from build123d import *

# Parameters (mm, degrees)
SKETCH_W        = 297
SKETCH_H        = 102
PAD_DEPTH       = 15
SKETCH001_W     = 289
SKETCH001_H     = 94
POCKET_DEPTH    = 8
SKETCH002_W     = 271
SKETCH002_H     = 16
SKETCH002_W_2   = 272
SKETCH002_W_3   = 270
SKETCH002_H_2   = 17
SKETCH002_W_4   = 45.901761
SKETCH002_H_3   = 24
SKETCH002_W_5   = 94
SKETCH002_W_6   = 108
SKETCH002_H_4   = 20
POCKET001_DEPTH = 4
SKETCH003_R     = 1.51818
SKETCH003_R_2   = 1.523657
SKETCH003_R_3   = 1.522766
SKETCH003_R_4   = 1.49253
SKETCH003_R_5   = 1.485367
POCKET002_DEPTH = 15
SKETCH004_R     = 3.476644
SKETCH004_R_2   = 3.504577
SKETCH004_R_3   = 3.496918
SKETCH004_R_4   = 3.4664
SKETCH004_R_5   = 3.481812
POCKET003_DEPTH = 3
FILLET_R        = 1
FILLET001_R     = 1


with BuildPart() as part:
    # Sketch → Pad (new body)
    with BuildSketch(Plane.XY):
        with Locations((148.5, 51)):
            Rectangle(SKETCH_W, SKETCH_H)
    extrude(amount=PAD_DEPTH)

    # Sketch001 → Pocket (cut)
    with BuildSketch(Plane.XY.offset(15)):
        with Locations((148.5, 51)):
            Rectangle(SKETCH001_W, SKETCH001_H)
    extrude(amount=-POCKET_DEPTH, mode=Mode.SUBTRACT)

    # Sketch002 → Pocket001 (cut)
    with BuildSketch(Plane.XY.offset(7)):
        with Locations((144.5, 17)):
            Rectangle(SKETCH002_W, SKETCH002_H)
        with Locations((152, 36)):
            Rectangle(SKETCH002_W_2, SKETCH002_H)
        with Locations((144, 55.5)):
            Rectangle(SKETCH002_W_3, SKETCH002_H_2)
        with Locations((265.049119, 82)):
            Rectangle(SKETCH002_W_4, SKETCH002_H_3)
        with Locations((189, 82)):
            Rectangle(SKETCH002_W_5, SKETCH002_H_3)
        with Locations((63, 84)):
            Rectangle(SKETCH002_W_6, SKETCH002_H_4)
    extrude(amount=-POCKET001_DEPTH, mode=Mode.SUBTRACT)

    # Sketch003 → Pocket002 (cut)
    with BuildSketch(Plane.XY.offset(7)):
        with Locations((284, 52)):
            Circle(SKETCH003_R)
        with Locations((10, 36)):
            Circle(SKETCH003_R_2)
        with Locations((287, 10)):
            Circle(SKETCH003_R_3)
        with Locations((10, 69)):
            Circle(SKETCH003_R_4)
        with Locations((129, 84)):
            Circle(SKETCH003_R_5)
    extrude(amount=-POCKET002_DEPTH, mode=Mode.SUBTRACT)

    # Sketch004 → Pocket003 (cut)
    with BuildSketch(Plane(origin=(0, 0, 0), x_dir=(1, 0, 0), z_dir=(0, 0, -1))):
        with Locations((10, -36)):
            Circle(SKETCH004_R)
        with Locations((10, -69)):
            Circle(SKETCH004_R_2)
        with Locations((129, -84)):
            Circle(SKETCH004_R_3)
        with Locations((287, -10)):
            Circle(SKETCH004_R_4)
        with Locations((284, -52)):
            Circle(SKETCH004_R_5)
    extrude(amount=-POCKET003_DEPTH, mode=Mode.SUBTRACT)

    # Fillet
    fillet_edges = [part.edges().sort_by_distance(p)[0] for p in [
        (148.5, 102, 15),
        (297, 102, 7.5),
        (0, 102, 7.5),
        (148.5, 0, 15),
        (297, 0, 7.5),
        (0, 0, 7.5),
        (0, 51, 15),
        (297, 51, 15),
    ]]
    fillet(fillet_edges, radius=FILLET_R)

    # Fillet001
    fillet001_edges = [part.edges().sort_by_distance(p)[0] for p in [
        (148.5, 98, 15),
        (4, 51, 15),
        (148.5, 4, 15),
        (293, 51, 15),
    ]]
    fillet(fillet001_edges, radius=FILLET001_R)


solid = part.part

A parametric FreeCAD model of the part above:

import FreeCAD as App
import Part
import Sketcher

V = App.Vector


def edges_at(feature, points):
    """Names of the edges that pass closest to the given points."""
    edges = feature.Shape.Edges
    near = lambda p: min(range(len(edges)), key=lambda i: edges[i].distToShape(Part.Vertex(*p))[0])
    return sorted({f"Edge{near(p) + 1}" for p in points})


def add_polygon(sketch, points):
    """Adds a closed chain of lines whose ends are joined by coincident constraints."""
    first, n = sketch.GeometryCount, len(points)
    for a, b in zip(points, points[1:] + points[:1]):
        sketch.addGeometry(Part.LineSegment(App.Vector(*a, 0), App.Vector(*b, 0)), False)
    for i in range(n):
        sketch.addConstraint(Sketcher.Constraint("Coincident", first + i, 2, first + (i + 1) % n, 1))

doc = App.newDocument("Part")
body = doc.addObject("PartDesign::Body", "Body")

sketch1 = body.newObject("Sketcher::SketchObject", "Sketch")
sketch1.AttachmentSupport = (doc.getObject("XY_Plane"), [""])
sketch1.MapMode = "FlatFace"
add_polygon(sketch1, [(0, 102), (0, 0), (297, 0), (297, 102)])
sketch1.addConstraint([
    Sketcher.Constraint("Vertical", 0),
    Sketcher.Constraint("Horizontal", 1),
    Sketcher.Constraint("Vertical", 2),
    Sketcher.Constraint("Horizontal", 3),
    Sketcher.Constraint("Coincident", 0, 2, -1, 1),
    Sketcher.Constraint("DistanceX", 1, 1, 1, 2, 297.0),
    Sketcher.Constraint("DistanceY", 0, 2, 0, 1, 102.0),
])
pad1 = body.newObject("PartDesign::Pad", "Pad")
pad1.Profile = sketch1
pad1.Length = 15

sketch2 = body.newObject("Sketcher::SketchObject", "Sketch001")
sketch2.AttachmentSupport = (doc.getObject("XY_Plane"), [""])
sketch2.MapMode = "FlatFace"
sketch2.AttachmentOffset = App.Placement(V(0, 0, 15), App.Rotation())
add_polygon(sketch2, [(4, 98), (4, 4), (293, 4), (293, 98)])
sketch2.addConstraint([
    Sketcher.Constraint("Vertical", 0),
    Sketcher.Constraint("Horizontal", 1),
    Sketcher.Constraint("Vertical", 2),
    Sketcher.Constraint("Horizontal", 3),
    Sketcher.Constraint("DistanceX", 1, 1, 1, 2, 289.0),
    Sketcher.Constraint("DistanceY", 0, 2, 0, 1, 94.0),
    Sketcher.Constraint("DistanceX", -1, 1, 0, 2, 4.0),
    Sketcher.Constraint("DistanceY", -1, 1, 0, 2, 4.0),
])
pocket1 = body.newObject("PartDesign::Pocket", "Pocket")
pocket1.Profile = sketch2
pocket1.Length = 8

sketch3 = body.newObject("Sketcher::SketchObject", "Sketch002")
sketch3.AttachmentSupport = (doc.getObject("XY_Plane"), [""])
sketch3.MapMode = "FlatFace"
sketch3.AttachmentOffset = App.Placement(V(0, 0, 7), App.Rotation())
add_polygon(sketch3, [(9, 25), (9, 9), (280, 9), (280, 25)])
add_polygon(sketch3, [(16, 44), (16, 28), (288, 28), (288, 44)])
add_polygon(sketch3, [(9, 64), (9, 47), (279, 47), (279, 64)])
add_polygon(sketch3, [(242, 94), (242, 70), (288, 70), (288, 94)])
add_polygon(sketch3, [(142, 94), (142, 70), (236, 70), (236, 94)])
add_polygon(sketch3, [(9, 94), (9, 74), (117, 74), (117, 94)])
sketch3.addConstraint([
    Sketcher.Constraint("Vertical", 0),
    Sketcher.Constraint("Horizontal", 1),
    Sketcher.Constraint("Vertical", 2),
    Sketcher.Constraint("Horizontal", 3),
    Sketcher.Constraint("Vertical", 4),
    Sketcher.Constraint("Horizontal", 5),
    Sketcher.Constraint("Vertical", 6),
    Sketcher.Constraint("Horizontal", 7),
    Sketcher.Constraint("Vertical", 8),
    Sketcher.Constraint("Horizontal", 9),
    Sketcher.Constraint("Vertical", 10),
    Sketcher.Constraint("Horizontal", 11),
    Sketcher.Constraint("Vertical", 12),
    Sketcher.Constraint("Horizontal", 13),
    Sketcher.Constraint("Vertical", 14),
    Sketcher.Constraint("Horizontal", 15),
    Sketcher.Constraint("Vertical", 16),
    Sketcher.Constraint("Horizontal", 17),
    Sketcher.Constraint("Vertical", 18),
    Sketcher.Constraint("Horizontal", 19),
    Sketcher.Constraint("Vertical", 20),
    Sketcher.Constraint("Horizontal", 21),
    Sketcher.Constraint("Vertical", 22),
    Sketcher.Constraint("Horizontal", 23),
    Sketcher.Constraint("Horizontal", 13, 2, 16, 2),
    Sketcher.Constraint("Horizontal", 15, 2, 18, 2),
    Sketcher.Constraint("Horizontal", 19, 2, 22, 2),
    Sketcher.Constraint("Vertical", 3, 2, 8, 2),
    Sketcher.Constraint("Vertical", 6, 2, 13, 2),
    Sketcher.Constraint("Vertical", 11, 2, 20, 2),
    Sketcher.Constraint("Equal", 2, 4),
    Sketcher.Constraint("DistanceX", 1, 1, 1, 2, 271.0),
    Sketcher.Constraint("DistanceX", 5, 1, 5, 2, 272.0),
    Sketcher.Constraint("DistanceX", 9, 1, 9, 2, 270.0),
    Sketcher.Constraint("DistanceX", 17, 1, 17, 2, 94.0),
    Sketcher.Constraint("DistanceX", 21, 1, 21, 2, 108.0),
    Sketcher.Constraint("DistanceY", 0, 2, 0, 1, 16.0),
    Sketcher.Constraint("DistanceY", 8, 2, 8, 1, 17.0),
    Sketcher.Constraint("DistanceY", 12, 2, 12, 1, 24.0),
    Sketcher.Constraint("DistanceY", 20, 2, 20, 1, 20.0),
    Sketcher.Constraint("DistanceX", -1, 1, 0, 2, 9.0),
    Sketcher.Constraint("DistanceY", -1, 1, 0, 2, 9.0),
    Sketcher.Constraint("DistanceX", -1, 1, 4, 2, 16.0),
    Sketcher.Constraint("DistanceY", -1, 1, 4, 2, 28.0),
    Sketcher.Constraint("DistanceY", -1, 1, 8, 2, 47.0),
    Sketcher.Constraint("DistanceY", -1, 1, 12, 2, 70.0),
    Sketcher.Constraint("DistanceX", -1, 1, 16, 2, 142.0),
    Sketcher.Constraint("DistanceX", 13, 1, 13, 2, 45.901761),
])
pocket2 = body.newObject("PartDesign::Pocket", "Pocket001")
pocket2.Profile = sketch3
pocket2.Length = 4

sketch4 = body.newObject("Sketcher::SketchObject", "Sketch003")
sketch4.AttachmentSupport = (doc.getObject("XY_Plane"), [""])
sketch4.MapMode = "FlatFace"
sketch4.AttachmentOffset = App.Placement(V(0, 0, 7), App.Rotation())
sketch4.addGeometry([
    Part.Circle(V(284, 52, 0), V(0, 0, 1), 1.5),
    Part.Circle(V(10, 36, 0), V(0, 0, 1), 1.5),
    Part.Circle(V(287, 10, 0), V(0, 0, 1), 1.5),
    Part.Circle(V(10, 69, 0), V(0, 0, 1), 1.5),
    Part.Circle(V(129, 84, 0), V(0, 0, 1), 1.5),
], False)
sketch4.addConstraint([
    Sketcher.Constraint("Vertical", 1, 3, 3, 3),
    Sketcher.Constraint("DistanceX", -1, 1, 0, 3, 284.0),
    Sketcher.Constraint("DistanceY", -1, 1, 0, 3, 52.0),
    Sketcher.Constraint("DistanceX", -1, 1, 1, 3, 10.0),
    Sketcher.Constraint("DistanceY", -1, 1, 1, 3, 36.0),
    Sketcher.Constraint("DistanceX", -1, 1, 2, 3, 287.0),
    Sketcher.Constraint("DistanceY", -1, 1, 2, 3, 10.0),
    Sketcher.Constraint("DistanceY", -1, 1, 3, 3, 69.0),
    Sketcher.Constraint("DistanceX", -1, 1, 4, 3, 129.0),
    Sketcher.Constraint("DistanceY", -1, 1, 4, 3, 84.0),
    Sketcher.Constraint("Diameter", 0, 3.03636),
    Sketcher.Constraint("Diameter", 3, 2.98506),
    Sketcher.Constraint("Diameter", 1, 3.047314),
    Sketcher.Constraint("Diameter", 2, 3.045532),
    Sketcher.Constraint("Diameter", 4, 2.970734),
])
pocket3 = body.newObject("PartDesign::Pocket", "Pocket002")
pocket3.Profile = sketch4
pocket3.Length = 15

sketch5 = body.newObject("Sketcher::SketchObject", "Sketch004")
sketch5.AttachmentSupport = (doc.getObject("XY_Plane"), [""])
sketch5.MapMode = "FlatFace"
sketch5.addGeometry([
    Part.Circle(V(10, 36, 0), V(0, 0, 1), 3.5),
    Part.Circle(V(10, 69, 0), V(0, 0, 1), 3.5),
    Part.Circle(V(129, 84, 0), V(0, 0, 1), 3.5),
    Part.Circle(V(287, 10, 0), V(0, 0, 1), 3.5),
    Part.Circle(V(284, 52, 0), V(0, 0, 1), 3.5),
], False)
sketch5.addConstraint([
    Sketcher.Constraint("Vertical", 0, 3, 1, 3),
    Sketcher.Constraint("DistanceX", -1, 1, 0, 3, 10.0),
    Sketcher.Constraint("DistanceY", -1, 1, 0, 3, 36.0),
    Sketcher.Constraint("DistanceY", -1, 1, 1, 3, 69.0),
    Sketcher.Constraint("DistanceX", -1, 1, 2, 3, 129.0),
    Sketcher.Constraint("DistanceY", -1, 1, 2, 3, 84.0),
    Sketcher.Constraint("DistanceX", -1, 1, 3, 3, 287.0),
    Sketcher.Constraint("DistanceY", -1, 1, 3, 3, 10.0),
    Sketcher.Constraint("DistanceX", -1, 1, 4, 3, 284.0),
    Sketcher.Constraint("DistanceY", -1, 1, 4, 3, 52.0),
    Sketcher.Constraint("Diameter", 3, 6.9328),
    Sketcher.Constraint("Diameter", 0, 6.953288),
    Sketcher.Constraint("Diameter", 1, 7.009154),
    Sketcher.Constraint("Diameter", 2, 6.993836),
    Sketcher.Constraint("Diameter", 4, 6.963624),
])
pocket4 = body.newObject("PartDesign::Pocket", "Pocket003")
pocket4.Profile = sketch5
pocket4.Length = 3
pocket4.Reversed = True
doc.recompute()

fillet = body.newObject("PartDesign::Fillet", "Fillet")
fillet.Base = (pocket4, edges_at(pocket4, [
    (148.5, 102, 15),
    (297, 102, 7.5),
    (0, 102, 7.5),
    (148.5, 0, 15),
    (297, 0, 7.5),
    (0, 0, 7.5),
    (0, 51, 15),
    (297, 51, 15),
]))
fillet.Radius = 1
doc.recompute()

fillet2 = body.newObject("PartDesign::Fillet", "Fillet001")
fillet2.Base = (fillet, edges_at(fillet, [
    (148.5, 98, 15),
    (4, 51, 15),
    (148.5, 4, 15),
    (293, 51, 15),
]))
fillet2.Radius = 1

doc.recompute()
